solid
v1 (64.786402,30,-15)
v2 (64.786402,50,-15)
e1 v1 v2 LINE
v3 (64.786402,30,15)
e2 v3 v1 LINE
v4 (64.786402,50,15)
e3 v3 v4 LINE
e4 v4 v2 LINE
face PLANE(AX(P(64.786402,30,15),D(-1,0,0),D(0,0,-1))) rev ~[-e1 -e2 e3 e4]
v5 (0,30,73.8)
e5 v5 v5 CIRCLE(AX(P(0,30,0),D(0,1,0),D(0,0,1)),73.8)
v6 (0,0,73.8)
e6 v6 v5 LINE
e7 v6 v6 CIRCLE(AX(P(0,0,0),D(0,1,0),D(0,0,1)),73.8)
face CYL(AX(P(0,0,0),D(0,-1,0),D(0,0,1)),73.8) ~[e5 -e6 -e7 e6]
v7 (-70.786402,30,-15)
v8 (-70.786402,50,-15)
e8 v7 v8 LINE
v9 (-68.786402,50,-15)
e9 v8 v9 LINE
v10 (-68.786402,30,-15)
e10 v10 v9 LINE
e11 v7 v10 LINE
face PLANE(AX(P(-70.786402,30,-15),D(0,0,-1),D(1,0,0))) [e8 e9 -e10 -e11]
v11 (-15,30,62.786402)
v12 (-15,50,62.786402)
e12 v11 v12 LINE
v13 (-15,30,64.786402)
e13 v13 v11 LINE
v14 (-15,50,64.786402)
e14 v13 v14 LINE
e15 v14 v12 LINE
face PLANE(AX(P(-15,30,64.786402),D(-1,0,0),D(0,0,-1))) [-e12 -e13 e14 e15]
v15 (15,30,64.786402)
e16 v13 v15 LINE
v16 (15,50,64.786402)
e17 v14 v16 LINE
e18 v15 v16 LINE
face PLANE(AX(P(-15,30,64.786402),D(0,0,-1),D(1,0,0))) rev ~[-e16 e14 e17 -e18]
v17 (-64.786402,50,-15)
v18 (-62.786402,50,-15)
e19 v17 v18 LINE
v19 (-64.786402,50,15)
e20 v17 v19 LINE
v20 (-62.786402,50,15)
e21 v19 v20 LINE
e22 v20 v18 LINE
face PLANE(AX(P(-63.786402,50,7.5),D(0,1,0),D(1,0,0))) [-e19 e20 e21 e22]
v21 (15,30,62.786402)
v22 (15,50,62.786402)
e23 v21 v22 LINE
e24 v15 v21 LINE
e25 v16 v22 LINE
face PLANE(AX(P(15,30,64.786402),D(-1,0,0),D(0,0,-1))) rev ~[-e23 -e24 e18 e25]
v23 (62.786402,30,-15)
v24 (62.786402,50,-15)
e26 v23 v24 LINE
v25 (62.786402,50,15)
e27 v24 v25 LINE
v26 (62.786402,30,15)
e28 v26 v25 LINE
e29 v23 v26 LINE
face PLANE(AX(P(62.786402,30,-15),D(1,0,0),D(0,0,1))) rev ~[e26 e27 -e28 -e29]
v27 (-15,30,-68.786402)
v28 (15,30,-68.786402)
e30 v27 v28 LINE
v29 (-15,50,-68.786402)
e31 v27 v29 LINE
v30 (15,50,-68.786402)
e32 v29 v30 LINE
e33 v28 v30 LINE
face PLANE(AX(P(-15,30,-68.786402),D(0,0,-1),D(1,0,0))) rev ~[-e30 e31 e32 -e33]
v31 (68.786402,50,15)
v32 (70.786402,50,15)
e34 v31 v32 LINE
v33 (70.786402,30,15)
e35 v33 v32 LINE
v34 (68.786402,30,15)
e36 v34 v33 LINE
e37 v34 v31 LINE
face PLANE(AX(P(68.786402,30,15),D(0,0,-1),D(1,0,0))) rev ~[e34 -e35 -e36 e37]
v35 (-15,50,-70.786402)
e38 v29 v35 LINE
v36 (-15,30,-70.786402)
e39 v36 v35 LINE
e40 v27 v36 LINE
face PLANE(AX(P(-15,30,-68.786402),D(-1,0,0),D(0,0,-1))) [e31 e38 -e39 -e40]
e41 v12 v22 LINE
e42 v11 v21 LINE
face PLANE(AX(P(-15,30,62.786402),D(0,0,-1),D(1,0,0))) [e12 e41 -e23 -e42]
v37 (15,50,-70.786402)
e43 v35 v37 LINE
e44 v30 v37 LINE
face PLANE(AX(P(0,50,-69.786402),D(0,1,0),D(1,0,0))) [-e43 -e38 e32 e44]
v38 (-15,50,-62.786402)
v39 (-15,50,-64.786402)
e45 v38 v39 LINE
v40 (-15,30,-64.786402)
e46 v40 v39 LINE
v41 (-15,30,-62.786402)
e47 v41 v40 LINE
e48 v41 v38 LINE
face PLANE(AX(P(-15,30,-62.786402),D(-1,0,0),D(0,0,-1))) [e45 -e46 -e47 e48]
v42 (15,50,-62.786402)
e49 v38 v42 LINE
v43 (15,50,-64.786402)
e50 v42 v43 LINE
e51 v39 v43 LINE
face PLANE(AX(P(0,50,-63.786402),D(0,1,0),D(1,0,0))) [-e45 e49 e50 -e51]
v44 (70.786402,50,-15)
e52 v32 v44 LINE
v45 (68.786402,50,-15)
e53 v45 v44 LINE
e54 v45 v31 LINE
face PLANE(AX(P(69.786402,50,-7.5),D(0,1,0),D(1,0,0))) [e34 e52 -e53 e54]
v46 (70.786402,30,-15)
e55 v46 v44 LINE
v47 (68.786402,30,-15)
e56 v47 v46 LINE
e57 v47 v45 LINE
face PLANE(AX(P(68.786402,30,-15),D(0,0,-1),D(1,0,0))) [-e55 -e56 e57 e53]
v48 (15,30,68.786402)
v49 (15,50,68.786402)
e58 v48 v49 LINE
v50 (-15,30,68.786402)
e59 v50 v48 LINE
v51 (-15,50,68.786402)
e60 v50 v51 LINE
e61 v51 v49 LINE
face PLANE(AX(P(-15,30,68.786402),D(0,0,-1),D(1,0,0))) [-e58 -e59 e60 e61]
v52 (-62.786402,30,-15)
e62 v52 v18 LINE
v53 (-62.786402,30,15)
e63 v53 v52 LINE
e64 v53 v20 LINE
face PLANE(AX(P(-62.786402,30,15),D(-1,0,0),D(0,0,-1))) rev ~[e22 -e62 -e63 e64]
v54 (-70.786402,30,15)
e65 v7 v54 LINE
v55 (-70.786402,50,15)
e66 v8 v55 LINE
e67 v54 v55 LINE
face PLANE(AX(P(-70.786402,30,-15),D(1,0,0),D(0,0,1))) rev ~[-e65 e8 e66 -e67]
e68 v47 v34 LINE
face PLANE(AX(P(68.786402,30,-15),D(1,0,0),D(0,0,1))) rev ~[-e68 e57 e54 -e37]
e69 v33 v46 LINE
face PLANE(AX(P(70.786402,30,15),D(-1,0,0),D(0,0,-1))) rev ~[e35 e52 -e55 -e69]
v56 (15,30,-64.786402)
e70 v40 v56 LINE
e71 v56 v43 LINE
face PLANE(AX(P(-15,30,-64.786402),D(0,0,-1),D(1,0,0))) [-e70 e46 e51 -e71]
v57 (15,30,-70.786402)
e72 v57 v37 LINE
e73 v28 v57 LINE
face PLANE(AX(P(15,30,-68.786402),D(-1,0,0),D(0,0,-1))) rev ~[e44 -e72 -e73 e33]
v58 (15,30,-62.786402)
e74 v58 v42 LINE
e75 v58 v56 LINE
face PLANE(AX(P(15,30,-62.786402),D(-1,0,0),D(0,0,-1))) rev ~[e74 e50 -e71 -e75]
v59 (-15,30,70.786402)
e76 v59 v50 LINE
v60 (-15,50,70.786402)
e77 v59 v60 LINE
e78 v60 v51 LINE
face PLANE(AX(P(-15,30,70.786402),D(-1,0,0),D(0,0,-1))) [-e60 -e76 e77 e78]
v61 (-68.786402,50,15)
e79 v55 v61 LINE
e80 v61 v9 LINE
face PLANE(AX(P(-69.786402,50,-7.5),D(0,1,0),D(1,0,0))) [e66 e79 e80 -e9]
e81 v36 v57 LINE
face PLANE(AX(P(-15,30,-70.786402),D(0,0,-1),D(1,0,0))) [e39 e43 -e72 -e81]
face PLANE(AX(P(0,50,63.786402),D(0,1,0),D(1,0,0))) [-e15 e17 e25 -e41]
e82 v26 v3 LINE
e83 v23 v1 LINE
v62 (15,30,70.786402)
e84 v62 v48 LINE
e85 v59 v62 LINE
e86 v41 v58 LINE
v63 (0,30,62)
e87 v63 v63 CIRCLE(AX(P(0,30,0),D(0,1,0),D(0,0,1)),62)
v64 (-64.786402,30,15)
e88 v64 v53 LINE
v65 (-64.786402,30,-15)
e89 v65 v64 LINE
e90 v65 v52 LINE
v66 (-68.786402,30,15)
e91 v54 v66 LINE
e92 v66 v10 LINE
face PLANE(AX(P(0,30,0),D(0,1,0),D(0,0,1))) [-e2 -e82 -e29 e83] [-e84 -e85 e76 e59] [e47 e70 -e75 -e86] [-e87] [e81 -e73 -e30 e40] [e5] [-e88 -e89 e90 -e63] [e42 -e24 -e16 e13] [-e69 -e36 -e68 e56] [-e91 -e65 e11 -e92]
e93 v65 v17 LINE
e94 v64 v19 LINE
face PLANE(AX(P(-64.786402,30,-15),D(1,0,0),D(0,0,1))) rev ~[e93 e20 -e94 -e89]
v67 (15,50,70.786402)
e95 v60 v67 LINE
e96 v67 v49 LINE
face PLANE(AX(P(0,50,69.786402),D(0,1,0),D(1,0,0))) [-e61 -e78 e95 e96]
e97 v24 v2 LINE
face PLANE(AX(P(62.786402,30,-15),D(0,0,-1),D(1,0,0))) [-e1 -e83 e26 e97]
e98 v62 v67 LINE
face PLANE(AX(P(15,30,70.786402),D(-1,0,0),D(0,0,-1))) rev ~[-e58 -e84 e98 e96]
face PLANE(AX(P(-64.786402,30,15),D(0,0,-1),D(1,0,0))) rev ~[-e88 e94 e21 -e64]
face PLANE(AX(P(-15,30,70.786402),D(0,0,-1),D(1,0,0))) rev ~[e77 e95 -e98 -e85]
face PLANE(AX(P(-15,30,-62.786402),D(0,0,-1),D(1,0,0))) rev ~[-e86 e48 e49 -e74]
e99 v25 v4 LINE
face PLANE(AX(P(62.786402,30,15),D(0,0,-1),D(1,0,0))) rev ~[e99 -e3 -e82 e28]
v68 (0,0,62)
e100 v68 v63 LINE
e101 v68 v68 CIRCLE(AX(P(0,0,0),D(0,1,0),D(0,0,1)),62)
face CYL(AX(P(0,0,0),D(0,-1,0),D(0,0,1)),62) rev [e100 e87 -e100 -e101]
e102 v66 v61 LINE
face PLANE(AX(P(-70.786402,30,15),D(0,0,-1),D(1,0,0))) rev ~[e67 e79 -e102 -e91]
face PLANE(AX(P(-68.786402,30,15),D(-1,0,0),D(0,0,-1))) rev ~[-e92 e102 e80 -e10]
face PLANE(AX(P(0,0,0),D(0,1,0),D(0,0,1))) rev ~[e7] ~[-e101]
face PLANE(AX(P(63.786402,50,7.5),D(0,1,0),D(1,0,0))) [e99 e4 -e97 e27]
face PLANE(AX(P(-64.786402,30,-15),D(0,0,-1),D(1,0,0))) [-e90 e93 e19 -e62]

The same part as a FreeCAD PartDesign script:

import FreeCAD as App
import Part
import Sketcher

V = App.Vector

doc = App.newDocument("Part")
body = doc.addObject("PartDesign::Body", "Body")

# Sketch on XZ plane
sketch1 = body.newObject("Sketcher::SketchObject", "Sketch")
sketch1.AttachmentSupport = (doc.getObject("XZ_Plane"), [""])
sketch1.MapMode = "FlatFace"
sketch1.addGeometry([
    Part.Circle(V(0, 0, 0), V(0, 0, 1), 73.8),
    Part.Circle(V(0, 0, 0), V(0, 0, 1), 62),
], False)
sketch1.addConstraint([
    Sketcher.Constraint("Coincident", 0, 3, -1, 1),
    Sketcher.Constraint("Coincident", 1, 3, -1, 1),
    Sketcher.Constraint("Diameter", 1, 124.0),
    Sketcher.Constraint("Diameter", 0, 147.6),
])
pad1 = body.newObject("PartDesign::Pad", "Pad")
pad1.Profile = sketch1
pad1.Length = 30
pad1.Reversed = True

# Sketch on XZ plane
sketch2 = body.newObject("Sketcher::SketchObject", "Sketch001")
sketch2.AttachmentSupport = (doc.getObject("XZ_Plane"), [""])
sketch2.MapMode = "FlatFace"
sketch2.AttachmentOffset = App.Placement(V(0, 0, -30), App.Rotation())
sketch2.addGeometry([
    Part.LineSegment(V(-70.786402, -15, 0), V(-70.786402, 15, 0)),  # 0
    Part.LineSegment(V(-70.786402, 15, 0), V(-68.786402, 15, 0)),  # 1
    Part.LineSegment(V(-68.786402, 15, 0), V(-68.786402, -15, 0)),  # 2
    Part.LineSegment(V(-68.786402, -15, 0), V(-70.786402, -15, 0)),  # 3
    Part.LineSegment(V(-64.786402, 15, 0), V(-62.786402, 15, 0)),  # 4
    Part.LineSegment(V(-62.786402, 15, 0), V(-62.786402, -15, 0)),  # 5
    Part.LineSegment(V(-62.786402, -15, 0), V(-64.786402, -15, 0)),  # 6
    Part.LineSegment(V(-64.786402, -15, 0), V(-64.786402, 15, 0)),  # 7
    Part.LineSegment(V(-15, -70.786402, 0), V(-15, -68.786402, 0)),  # 8
    Part.LineSegment(V(-15, -68.786402, 0), V(15, -68.786402, 0)),  # 9
    Part.LineSegment(V(15, -68.786402, 0), V(15, -70.786402, 0)),  # 10
    Part.LineSegment(V(15, -70.786402, 0), V(-15, -70.786402, 0)),  # 11
    Part.LineSegment(V(-15, -64.786402, 0), V(-15, -62.786402, 0)),  # 12
    Part.LineSegment(V(-15, -62.786402, 0), V(15, -62.786402, 0)),  # 13
    Part.LineSegment(V(15, -62.786402, 0), V(15, -64.786402, 0)),  # 14
    Part.LineSegment(V(15, -64.786402, 0), V(-15, -64.786402, 0)),  # 15
    Part.LineSegment(V(62.786402, 15, 0), V(64.786402, 15, 0)),  # 16
    Part.LineSegment(V(64.786402, 15, 0), V(64.786402, -15, 0)),  # 17
    Part.LineSegment(V(64.786402, -15, 0), V(62.786402, -15, 0)),  # 18
    Part.LineSegment(V(62.786402, -15, 0), V(62.786402, 15, 0)),  # 19
    Part.LineSegment(V(68.786402, -15, 0), V(68.786402, 15, 0)),  # 20
    Part.LineSegment(V(68.786402, 15, 0), V(70.786402, 15, 0)),  # 21
    Part.LineSegment(V(70.786402, 15, 0), V(70.786402, -15, 0)),  # 22
    Part.LineSegment(V(70.786402, -15, 0), V(68.786402, -15, 0)),  # 23
    Part.LineSegment(V(-15, 68.786402, 0), V(-15, 70.786402, 0)),  # 24
    Part.LineSegment(V(-15, 70.786402, 0), V(15, 70.786402, 0)),  # 25
    Part.LineSegment(V(15, 70.786402, 0), V(15, 68.786402, 0)),  # 26
    Part.LineSegment(V(15, 68.786402, 0), V(-15, 68.786402, 0)),  # 27
    Part.LineSegment(V(-15, 62.786402, 0), V(-15, 64.786402, 0)),  # 28
    Part.LineSegment(V(-15, 64.786402, 0), V(15, 64.786402, 0)),  # 29
    Part.LineSegment(V(15, 64.786402, 0), V(15, 62.786402, 0)),  # 30
    Part.LineSegment(V(15, 62.786402, 0), V(-15, 62.786402, 0)),  # 31
], False)
sketch2.addConstraint([
    Sketcher.Constraint("Coincident", 0, 2, 1, 1),
    Sketcher.Constraint("Coincident", 1, 2, 2, 1),
    Sketcher.Constraint("Coincident", 2, 2, 3, 1),
    Sketcher.Constraint("Coincident", 3, 2, 0, 1),
    Sketcher.Constraint("Coincident", 4, 2, 5, 1),
    Sketcher.Constraint("Coincident", 5, 2, 6, 1),
    Sketcher.Constraint("Coincident", 6, 2, 7, 1),
    Sketcher.Constraint("Coincident", 7, 2, 4, 1),
    Sketcher.Constraint("Coincident", 8, 2, 9, 1),
    Sketcher.Constraint("Coincident", 9, 2, 10, 1),
    Sketcher.Constraint("Coincident", 10, 2, 11, 1),
    Sketcher.Constraint("Coincident", 11, 2, 8, 1),
    Sketcher.Constraint("Coincident", 12, 2, 13, 1),
    Sketcher.Constraint("Coincident", 13, 2, 14, 1),
    Sketcher.Constraint("Coincident", 14, 2, 15, 1),
    Sketcher.Constraint("Coincident", 15, 2, 12, 1),
    Sketcher.Constraint("Coincident", 16, 2, 17, 1),
    Sketcher.Constraint("Coincident", 17, 2, 18, 1),
    Sketcher.Constraint("Coincident", 18, 2, 19, 1),
    Sketcher.Constraint("Coincident", 19, 2, 16, 1),
    Sketcher.Constraint("Coincident", 20, 2, 21, 1),
    Sketcher.Constraint("Coincident", 21, 2, 22, 1),
    Sketcher.Constraint("Coincident", 22, 2, 23, 1),
    Sketcher.Constraint("Coincident", 23, 2, 20, 1),
    Sketcher.Constraint("Coincident", 24, 2, 25, 1),
    Sketcher.Constraint("Coincident", 25, 2, 26, 1),
    Sketcher.Constraint("Coincident", 26, 2, 27, 1),
    Sketcher.Constraint("Coincident", 27, 2, 24, 1),
    Sketcher.Constraint("Coincident", 28, 2, 29, 1),
    Sketcher.Constraint("Coincident", 29, 2, 30, 1),
    Sketcher.Constraint("Coincident", 30, 2, 31, 1),
    Sketcher.Constraint("Coincident", 31, 2, 28, 1),
    Sketcher.Constraint("Vertical", 0),
    Sketcher.Constraint("Horizontal", 1),
    Sketcher.Constraint("Vertical", 2),
    Sketcher.Constraint("Horizontal", 3),
    Sketcher.Constraint("Horizontal", 4),
    Sketcher.Constraint("Vertical", 5),
    Sketcher.Constraint("Horizontal", 6),
    Sketcher.Constraint("Vertical", 7),
    Sketcher.Constraint("Vertical", 8),
    Sketcher.Constraint("Horizontal", 9),
    Sketcher.Constraint("Vertical", 10),
    Sketcher.Constraint("Horizontal", 11),
    Sketcher.Constraint("Vertical", 12),
    Sketcher.Constraint("Horizontal", 13),
    Sketcher.Constraint("Vertical", 14),
    Sketcher.Constraint("Horizontal", 15),
    Sketcher.Constraint("Horizontal", 16),
    Sketcher.Constraint("Vertical", 17),
    Sketcher.Constraint("Horizontal", 18),
    Sketcher.Constraint("Vertical", 19),
    Sketcher.Constraint("Vertical", 20),
    Sketcher.Constraint("Horizontal", 21),
    Sketcher.Constraint("Vertical", 22),
    Sketcher.Constraint("Horizontal", 23),
    Sketcher.Constraint("Vertical", 24),
    Sketcher.Constraint("Horizontal", 25),
    Sketcher.Constraint("Vertical", 26),
    Sketcher.Constraint("Horizontal", 27),
    Sketcher.Constraint("Vertical", 28),
    Sketcher.Constraint("Horizontal", 29),
    Sketcher.Constraint("Vertical", 30),
    Sketcher.Constraint("Horizontal", 31),
    Sketcher.Constraint("Symmetric", 6, 2, 16, 2, -1, 1),
    Sketcher.Constraint("Symmetric", 4, 2, 18, 2, -1, 1),
    Sketcher.Constraint("Symmetric", 2, 2, 20, 2, -1, 1),
    Sketcher.Constraint("Symmetric", 0, 2, 22, 2, -1, 1),
    Sketcher.Constraint("Symmetric", 10, 2, 24, 2, -1, 1),
    Sketcher.Constraint("Symmetric", 8, 2, 26, 2, -1, 1),
    Sketcher.Constraint("Symmetric", 14, 2, 28, 2, -1, 1),
    Sketcher.Constraint("Symmetric", 12, 2, 30, 2, -1, 1),
    Sketcher.Constraint("Horizontal", 1, 2, 4, 2),
    Sketcher.Constraint("Horizontal", 3, 2, 5, 2),
    Sketcher.Constraint("Horizontal", 7, 2, 16, 2),
    Sketcher.Constraint("Vertical", 11, 2, 12, 2),
    Sketcher.Constraint("Vertical", 10, 2, 13, 2),
    Sketcher.Constraint("Vertical", 15, 2, 24, 2),
    Sketcher.Constraint("Equal", 3, 4),
    Sketcher.Constraint("Equal", 31, 0),
    Sketcher.Constraint("Equal", 23, 8),
    Sketcher.Constraint("Equal", 10, 12),
    Sketcher.Constraint("DistanceX", 1, 1, 1, 2, 2.0),
    Sketcher.Constraint("DistanceX", 9, 1, 9, 2, 30.0),
    Sketcher.Constraint("DistanceX", 1, 2, 4, 2, 6.0),
    Sketcher.Constraint("DistanceY", 8, 2, 12, 2, 6.0),
    Sketcher.Constraint("DistanceX", 0, 2, -1, 1, 70.786402),
    Sketcher.Constraint("DistanceY", 8, 2, -1, 1, 68.786402),
])
pad2 = body.newObject("PartDesign::Pad", "Pad001")
pad2.Profile = sketch2
pad2.Length = 20
pad2.Reversed = True

doc.recompute()
